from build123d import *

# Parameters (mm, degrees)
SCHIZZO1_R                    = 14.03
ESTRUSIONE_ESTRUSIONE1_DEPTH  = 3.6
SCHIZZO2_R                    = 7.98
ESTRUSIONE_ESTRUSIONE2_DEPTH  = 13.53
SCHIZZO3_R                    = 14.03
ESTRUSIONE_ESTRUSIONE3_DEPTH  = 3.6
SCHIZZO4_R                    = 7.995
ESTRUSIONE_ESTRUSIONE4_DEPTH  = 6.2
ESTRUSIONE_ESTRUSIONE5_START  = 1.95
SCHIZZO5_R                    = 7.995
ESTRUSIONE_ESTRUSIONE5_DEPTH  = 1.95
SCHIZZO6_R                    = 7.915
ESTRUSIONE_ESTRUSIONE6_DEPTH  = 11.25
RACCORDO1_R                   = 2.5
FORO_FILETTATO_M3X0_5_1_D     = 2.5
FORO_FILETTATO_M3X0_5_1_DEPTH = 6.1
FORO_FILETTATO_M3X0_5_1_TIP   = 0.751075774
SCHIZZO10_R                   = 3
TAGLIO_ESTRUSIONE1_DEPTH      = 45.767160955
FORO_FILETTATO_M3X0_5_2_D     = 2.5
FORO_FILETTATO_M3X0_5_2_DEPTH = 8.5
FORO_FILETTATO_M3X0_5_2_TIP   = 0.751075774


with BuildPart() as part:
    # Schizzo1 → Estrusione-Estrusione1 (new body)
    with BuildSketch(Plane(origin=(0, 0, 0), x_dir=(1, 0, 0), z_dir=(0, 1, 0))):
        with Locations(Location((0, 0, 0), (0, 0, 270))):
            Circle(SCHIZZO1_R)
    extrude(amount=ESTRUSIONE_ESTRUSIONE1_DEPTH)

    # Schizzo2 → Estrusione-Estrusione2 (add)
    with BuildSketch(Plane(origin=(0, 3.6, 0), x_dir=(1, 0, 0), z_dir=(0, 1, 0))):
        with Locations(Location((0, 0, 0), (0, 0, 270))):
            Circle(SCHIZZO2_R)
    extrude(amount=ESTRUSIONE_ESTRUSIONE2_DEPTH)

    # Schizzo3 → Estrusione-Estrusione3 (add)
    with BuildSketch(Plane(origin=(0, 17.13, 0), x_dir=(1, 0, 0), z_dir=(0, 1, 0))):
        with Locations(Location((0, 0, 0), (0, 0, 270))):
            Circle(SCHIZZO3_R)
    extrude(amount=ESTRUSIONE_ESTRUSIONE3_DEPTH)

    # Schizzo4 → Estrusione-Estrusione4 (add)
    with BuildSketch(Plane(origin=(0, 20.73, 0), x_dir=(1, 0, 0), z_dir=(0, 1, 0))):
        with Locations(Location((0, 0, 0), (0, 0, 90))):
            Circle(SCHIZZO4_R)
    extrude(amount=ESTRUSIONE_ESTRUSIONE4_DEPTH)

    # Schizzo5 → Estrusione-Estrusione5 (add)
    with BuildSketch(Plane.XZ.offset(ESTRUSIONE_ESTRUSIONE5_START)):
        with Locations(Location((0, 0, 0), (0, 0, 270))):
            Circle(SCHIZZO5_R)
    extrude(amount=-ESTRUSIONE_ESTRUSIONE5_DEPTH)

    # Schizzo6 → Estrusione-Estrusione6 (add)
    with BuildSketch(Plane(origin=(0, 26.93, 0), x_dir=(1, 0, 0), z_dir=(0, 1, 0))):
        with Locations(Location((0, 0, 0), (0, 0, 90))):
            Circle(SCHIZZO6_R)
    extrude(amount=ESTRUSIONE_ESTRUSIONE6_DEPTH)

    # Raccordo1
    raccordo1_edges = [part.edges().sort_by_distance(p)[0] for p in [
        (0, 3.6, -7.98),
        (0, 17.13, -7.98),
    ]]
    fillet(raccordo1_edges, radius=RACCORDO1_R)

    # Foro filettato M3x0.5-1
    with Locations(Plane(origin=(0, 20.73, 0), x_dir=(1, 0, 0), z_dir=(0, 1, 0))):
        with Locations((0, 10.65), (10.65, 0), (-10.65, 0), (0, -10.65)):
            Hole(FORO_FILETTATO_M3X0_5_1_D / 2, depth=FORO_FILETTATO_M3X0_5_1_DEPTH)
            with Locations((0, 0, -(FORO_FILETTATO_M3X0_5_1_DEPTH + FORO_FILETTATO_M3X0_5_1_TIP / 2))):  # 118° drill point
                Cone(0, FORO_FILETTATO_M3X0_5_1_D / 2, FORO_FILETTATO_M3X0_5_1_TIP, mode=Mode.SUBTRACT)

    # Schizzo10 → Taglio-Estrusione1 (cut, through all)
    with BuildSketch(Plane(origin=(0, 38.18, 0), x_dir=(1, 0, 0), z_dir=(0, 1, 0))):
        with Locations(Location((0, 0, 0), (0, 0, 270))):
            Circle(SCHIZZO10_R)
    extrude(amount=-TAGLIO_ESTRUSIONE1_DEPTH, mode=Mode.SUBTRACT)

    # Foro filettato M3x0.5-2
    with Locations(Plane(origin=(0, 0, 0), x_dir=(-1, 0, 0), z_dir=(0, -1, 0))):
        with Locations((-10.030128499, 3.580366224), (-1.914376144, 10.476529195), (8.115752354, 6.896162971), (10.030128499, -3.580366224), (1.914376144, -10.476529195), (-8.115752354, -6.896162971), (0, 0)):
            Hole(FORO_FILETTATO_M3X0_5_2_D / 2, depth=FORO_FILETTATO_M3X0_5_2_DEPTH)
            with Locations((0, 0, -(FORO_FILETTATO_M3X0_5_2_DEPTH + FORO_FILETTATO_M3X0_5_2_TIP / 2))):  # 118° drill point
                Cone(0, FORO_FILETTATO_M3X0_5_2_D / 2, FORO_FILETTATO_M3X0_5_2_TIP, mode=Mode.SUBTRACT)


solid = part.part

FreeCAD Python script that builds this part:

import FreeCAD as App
import Part
import Sketcher


def edges_at(feature, points):
    """Names of the edges that pass closest to the given points."""
    edges = feature.Shape.Edges
    near = lambda p: min(range(len(edges)), key=lambda i: edges[i].distToShape(Part.Vertex(*p))[0])
    return sorted({f"Edge{near(p) + 1}" for p in points})

doc = App.newDocument("Part")
params = doc.addObject("Spreadsheet::Sheet", "Params")
for row, (alias, value) in enumerate([
    ("sketch1_diameter", "28.06 mm"),
    ("pad1_length", "3.6 mm"),
    ("sketch2_diameter", "15.96 mm"),
    ("pad2_length", "13.53 mm"),
    ("sketch3_diameter", "28.06 mm"),
    ("pad3_length", "3.6 mm"),
    ("sketch4_diameter", "15.99 mm"),
    ("pad4_length", "6.2 mm"),
    ("sketch5_diameter", "15.99 mm"),
    ("pad5_length", "1.95 mm"),
    ("sketch6_diameter", "15.83 mm"),
    ("pad6_length", "11.25 mm"),
    ("fillet_radius", "2.5 mm"),
    ("sketch7_diameter", "2.5 mm"),
    ("hole_diameter", "2.5 mm"),
    ("hole_depth", "6.1 mm"),
    ("sketch8_diameter", "6 mm"),
    ("sketch9_diameter", "2.5 mm"),
    ("hole2_diameter", "2.5 mm"),
    ("hole2_depth", "8.5 mm"),
], start=1):
    params.set(f"A{row}", alias)
    params.set(f"B{row}", "=" + value)
    params.setAlias(f"B{row}", alias)

body = doc.addObject("PartDesign::Body", "Body")

# Sketch on XZ plane
sketch1 = doc.addObject("Sketcher::SketchObject", "Sketch")
body.addObject(sketch1)
sketch1.AttachmentSupport = (doc.XZ_Plane, [""])
sketch1.MapMode = "FlatFace"
sketch1.addGeometry(Part.Circle(App.Vector(0, 0, 0), App.Vector(0, 0, 1), 14.03), False)
sketch1.addConstraint([
    Sketcher.Constraint("Coincident", 0, 3, -1, 1),
    Sketcher.Constraint("Diameter", 0, 28.06),
])
sketch1.setExpression("Constraints[1]", "Params.sketch1_diameter")
pad1 = doc.addObject("PartDesign::Pad", "Pad")
body.addObject(pad1)
pad1.Profile = sketch1
pad1.setExpression("Length", "Params.pad1_length")
pad1.Reversed = True

# Sketch on XZ plane
sketch2 = doc.addObject("Sketcher::SketchObject", "Sketch001")
body.addObject(sketch2)
sketch2.AttachmentSupport = (doc.XZ_Plane, [""])
sketch2.MapMode = "FlatFace"
sketch2.AttachmentOffset = App.Placement(App.Vector(0, 0, -3.6), App.Rotation())
sketch2.addGeometry(Part.Circle(App.Vector(0, 0, 0), App.Vector(0, 0, 1), 7.98), False)
sketch2.addConstraint([
    Sketcher.Constraint("Coincident", 0, 3, -1, 1),
    Sketcher.Constraint("Diameter", 0, 15.96),
])
sketch2.setExpression("Constraints[1]", "Params.sketch2_diameter")
pad2 = doc.addObject("PartDesign::Pad", "Pad001")
body.addObject(pad2)
pad2.Profile = sketch2
pad2.setExpression("Length", "Params.pad2_length")
pad2.Reversed = True

# Sketch on XZ plane
sketch3 = doc.addObject("Sketcher::SketchObject", "Sketch002")
body.addObject(sketch3)
sketch3.AttachmentSupport = (doc.XZ_Plane, [""])
sketch3.MapMode = "FlatFace"
sketch3.AttachmentOffset = App.Placement(App.Vector(0, 0, -17.13), App.Rotation())
sketch3.addGeometry(Part.Circle(App.Vector(0, 0, 0), App.Vector(0, 0, 1), 14.03), False)
sketch3.addConstraint([
    Sketcher.Constraint("Coincident", 0, 3, -1, 1),
    Sketcher.Constraint("Diameter", 0, 28.06),
])
sketch3.setExpression("Constraints[1]", "Params.sketch3_diameter")
pad3 = doc.addObject("PartDesign::Pad", "Pad002")
body.addObject(pad3)
pad3.Profile = sketch3
pad3.setExpression("Length", "Params.pad3_length")
pad3.Reversed = True

# Sketch on XZ plane
sketch4 = doc.addObject("Sketcher::SketchObject", "Sketch003")
body.addObject(sketch4)
sketch4.AttachmentSupport = (doc.XZ_Plane, [""])
sketch4.MapMode = "FlatFace"
sketch4.AttachmentOffset = App.Placement(App.Vector(0, 0, -20.73), App.Rotation())
sketch4.addGeometry(Part.Circle(App.Vector(0, 0, 0), App.Vector(0, 0, 1), 7.995), False)
sketch4.addConstraint([
    Sketcher.Constraint("Coincident", 0, 3, -1, 1),
    Sketcher.Constraint("Diameter", 0, 15.99),
])
sketch4.setExpression("Constraints[1]", "Params.sketch4_diameter")
pad4 = doc.addObject("PartDesign::Pad", "Pad003")
body.addObject(pad4)
pad4.Profile = sketch4
pad4.setExpression("Length", "Params.pad4_length")
pad4.Reversed = True

# Sketch on XZ plane
sketch5 = doc.addObject("Sketcher::SketchObject", "Sketch004")
body.addObject(sketch5)
sketch5.AttachmentSupport = (doc.XZ_Plane, [""])
sketch5.MapMode = "FlatFace"
sketch5.AttachmentOffset = App.Placement(App.Vector(0, 0, 1.95), App.Rotation())
sketch5.addGeometry(Part.Circle(App.Vector(0, 0, 0), App.Vector(0, 0, 1), 7.995), False)
sketch5.addConstraint([
    Sketcher.Constraint("Coincident", 0, 3, -1, 1),
    Sketcher.Constraint("Diameter", 0, 15.99),
])
sketch5.setExpression("Constraints[1]", "Params.sketch5_diameter")
pad5 = doc.addObject("PartDesign::Pad", "Pad004")
body.addObject(pad5)
pad5.Profile = sketch5
pad5.setExpression("Length", "Params.pad5_length")
pad5.Reversed = True

# Sketch on XZ plane
sketch6 = doc.addObject("Sketcher::SketchObject", "Sketch005")
body.addObject(sketch6)
sketch6.AttachmentSupport = (doc.XZ_Plane, [""])
sketch6.MapMode = "FlatFace"
sketch6.AttachmentOffset = App.Placement(App.Vector(0, 0, -26.93), App.Rotation())
sketch6.addGeometry(Part.Circle(App.Vector(0, 0, 0), App.Vector(0, 0, 1), 7.915), False)
sketch6.addConstraint([
    Sketcher.Constraint("Coincident", 0, 3, -1, 1),
    Sketcher.Constraint("Diameter", 0, 15.83),
])
sketch6.setExpression("Constraints[1]", "Params.sketch6_diameter")
pad6 = doc.addObject("PartDesign::Pad", "Pad005")
body.addObject(pad6)
pad6.Profile = sketch6
pad6.setExpression("Length", "Params.pad6_length")
pad6.Reversed = True
doc.recompute()

fillet = doc.addObject("PartDesign::Fillet", "Fillet")
body.addObject(fillet)
fillet.Base = (pad6, edges_at(pad6, [(0, 3.6, -7.98), (0, 17.13, -7.98)]))
fillet.setExpression("Radius", "Params.fillet_radius")

# Sketch on XZ plane
sketch7 = doc.addObject("Sketcher::SketchObject", "Sketch006")
body.addObject(sketch7)
sketch7.AttachmentSupport = (doc.XZ_Plane, [""])
sketch7.MapMode = "FlatFace"
sketch7.AttachmentOffset = App.Placement(App.Vector(0, 0, -20.73), App.Rotation())
sketch7.addGeometry([
    Part.Circle(App.Vector(0, -10.65, 0), App.Vector(0, 0, 1), 1.25),
    Part.Circle(App.Vector(10.65, 0, 0), App.Vector(0, 0, 1), 1.25),
    Part.Circle(App.Vector(-10.65, 0, 0), App.Vector(0, 0, 1), 1.25),
    Part.Circle(App.Vector(0, 10.65, 0), App.Vector(0, 0, 1), 1.25),
], False)
sketch7.addConstraint([
    Sketcher.Constraint("Equal", 0, 1),
    Sketcher.Constraint("Equal", 1, 2),
    Sketcher.Constraint("Equal", 2, 3),
    Sketcher.Constraint("Symmetric", 1, 3, 2, 3, -1, 1),
    Sketcher.Constraint("Symmetric", 0, 3, 3, 3, -1, 1),
    Sketcher.Constraint("PointOnObject", 0, 3, -2),
    Sketcher.Constraint("PointOnObject", 1, 3, -1),
    Sketcher.Constraint("Diameter", 0, 2.5),
    Sketcher.Constraint("DistanceX", 2, 3, 1, 3, 21.3),
    Sketcher.Constraint("DistanceY", 0, 3, 3, 3, 21.3),
])
sketch7.setExpression("Constraints[7]", "Params.sketch7_diameter")
doc.recompute()
hole = doc.addObject("PartDesign::Hole", "Hole")
body.addObject(hole)
hole.Profile = sketch7
hole.ThreadType = "None"
hole.setExpression("Diameter", "Params.hole_diameter")
hole.DepthType = "Dimension"
hole.setExpression("Depth", "Params.hole_depth")
hole.DrillPoint = "Angled"
hole.DrillPointAngle = 118
hole.Reversed = True

# Sketch on XZ plane
sketch8 = doc.addObject("Sketcher::SketchObject", "Sketch007")
body.addObject(sketch8)
sketch8.AttachmentSupport = (doc.XZ_Plane, [""])
sketch8.MapMode = "FlatFace"
sketch8.AttachmentOffset = App.Placement(App.Vector(0, 0, -38.18), App.Rotation())
sketch8.addGeometry(Part.Circle(App.Vector(0, 0, 0), App.Vector(0, 0, 1), 3), False)
sketch8.addConstraint([
    Sketcher.Constraint("Coincident", 0, 3, -1, 1),
    Sketcher.Constraint("Diameter", 0, 6.0),
])
sketch8.setExpression("Constraints[1]", "Params.sketch8_diameter")
pocket1 = doc.addObject("PartDesign::Pocket", "Pocket")
body.addObject(pocket1)
pocket1.Profile = sketch8
pocket1.Type = "ThroughAll"
pocket1.Reversed = True

# Sketch on XZ plane
sketch9 = doc.addObject("Sketcher::SketchObject", "Sketch008")
body.addObject(sketch9)
sketch9.AttachmentSupport = (doc.XZ_Plane, [""])
sketch9.MapMode = "FlatFace"
sketch9.addGeometry([
    Part.Circle(App.Vector(10.030128, -3.580366, 0), App.Vector(0, 0, 1), 1.25),  # 0
    Part.Circle(App.Vector(1.914376, -10.476529, 0), App.Vector(0, 0, 1), 1.25),  # 1
    Part.Circle(App.Vector(-8.115752, -6.896163, 0), App.Vector(0, 0, 1), 1.25),  # 2
    Part.Circle(App.Vector(-10.030128, 3.580366, 0), App.Vector(0, 0, 1), 1.25),  # 3
    Part.Circle(App.Vector(-1.914376, 10.476529, 0), App.Vector(0, 0, 1), 1.25),  # 4
    Part.Circle(App.Vector(8.115752, 6.896163, 0), App.Vector(0, 0, 1), 1.25),  # 5
    Part.Circle(App.Vector(0, 0, 0), App.Vector(0, 0, 1), 1.25),  # 6
], False)
sketch9.addConstraint([
    Sketcher.Constraint("Coincident", 6, 3, -1, 1),
    Sketcher.Constraint("Equal", 0, 1),
    Sketcher.Constraint("Equal", 1, 2),
    Sketcher.Constraint("Equal", 2, 3),
    Sketcher.Constraint("Equal", 3, 4),
    Sketcher.Constraint("Equal", 4, 5),
    Sketcher.Constraint("Equal", 5, 6),
    Sketcher.Constraint("Symmetric", 0, 3, 3, 3, -1, 1),
    Sketcher.Constraint("Symmetric", 1, 3, 4, 3, -1, 1),
    Sketcher.Constraint("Symmetric", 2, 3, 5, 3, -1, 1),
    Sketcher.Constraint("Diameter", 0, 2.5),
    Sketcher.Constraint("DistanceX", -1, 1, 0, 3, 10.030128),
    Sketcher.Constraint("DistanceY", 1, 3, -1, 1, 10.476529),
    Sketcher.Constraint("DistanceX", 2, 3, 1, 3, 10.030128),
    Sketcher.Constraint("DistanceX", 2, 3, 0, 3, 18.145881),
    Sketcher.Constraint("DistanceY", 2, 3, 3, 3, 10.476529),
    Sketcher.Constraint("DistanceY", 0, 3, -1, 1, 3.580366),
])
sketch9.setExpression("Constraints[10]", "Params.sketch9_diameter")
doc.recompute()
hole2 = doc.addObject("PartDesign::Hole", "Hole001")
body.addObject(hole2)
hole2.Profile = sketch9
hole2.ThreadType = "None"
hole2.setExpression("Diameter", "Params.hole2_diameter")
hole2.DepthType = "Dimension"
hole2.setExpression("Depth", "Params.hole2_depth")
hole2.DrillPoint = "Angled"
hole2.DrillPointAngle = 118

doc.recompute()
